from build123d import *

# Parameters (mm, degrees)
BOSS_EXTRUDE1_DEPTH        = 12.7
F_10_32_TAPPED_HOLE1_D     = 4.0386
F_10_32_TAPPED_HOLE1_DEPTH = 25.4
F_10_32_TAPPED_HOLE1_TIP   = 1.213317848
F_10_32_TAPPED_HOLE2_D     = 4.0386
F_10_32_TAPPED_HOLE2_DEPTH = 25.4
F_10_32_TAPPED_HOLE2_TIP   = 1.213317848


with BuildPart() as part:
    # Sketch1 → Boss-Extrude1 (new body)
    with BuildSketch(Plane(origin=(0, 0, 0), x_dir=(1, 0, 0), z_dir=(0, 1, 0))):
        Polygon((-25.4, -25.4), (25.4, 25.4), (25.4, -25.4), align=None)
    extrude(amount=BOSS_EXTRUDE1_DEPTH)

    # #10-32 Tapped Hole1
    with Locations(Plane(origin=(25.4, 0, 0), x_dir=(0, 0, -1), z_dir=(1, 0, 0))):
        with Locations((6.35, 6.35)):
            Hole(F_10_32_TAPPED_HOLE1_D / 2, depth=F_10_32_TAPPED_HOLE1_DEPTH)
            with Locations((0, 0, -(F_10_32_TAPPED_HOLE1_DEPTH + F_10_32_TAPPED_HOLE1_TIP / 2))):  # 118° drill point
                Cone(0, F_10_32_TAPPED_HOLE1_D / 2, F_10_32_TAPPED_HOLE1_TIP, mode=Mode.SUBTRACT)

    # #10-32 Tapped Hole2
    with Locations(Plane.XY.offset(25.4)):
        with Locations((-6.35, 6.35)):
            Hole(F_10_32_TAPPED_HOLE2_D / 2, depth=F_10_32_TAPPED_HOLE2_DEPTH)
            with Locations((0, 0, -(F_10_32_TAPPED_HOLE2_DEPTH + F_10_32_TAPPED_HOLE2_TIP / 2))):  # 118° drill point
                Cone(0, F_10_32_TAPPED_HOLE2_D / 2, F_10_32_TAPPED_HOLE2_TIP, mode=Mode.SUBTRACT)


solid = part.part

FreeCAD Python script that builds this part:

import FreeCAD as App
import Part
import Sketcher
Q = App.Units.Quantity

doc = App.newDocument("Part")
body = doc.addObject("PartDesign::Body", "Body")

# Sketch on XZ plane
sketch1 = body.newObject("Sketcher::SketchObject", "Sketch")
sketch1.AttachmentSupport = (doc.getObject("XZ_Plane"), [""])
sketch1.MapMode = "FlatFace"
sketch1.addGeometry([
    Part.LineSegment(App.Vector(25.4, -25.4, 0), App.Vector(-25.4, 25.4, 0)),
    Part.LineSegment(App.Vector(-25.4, 25.4, 0), App.Vector(25.4, 25.4, 0)),
    Part.LineSegment(App.Vector(25.4, 25.4, 0), App.Vector(25.4, -25.4, 0)),
], False)
sketch1.addConstraint([
    Sketcher.Constraint("Coincident", 0, 2, 1, 1),
    Sketcher.Constraint("Coincident", 1, 2, 2, 1),
    Sketcher.Constraint("Coincident", 2, 2, 0, 1),
    Sketcher.Constraint("Horizontal", 1),
    Sketcher.Constraint("Vertical", 2),
    Sketcher.Constraint("Symmetric", 0, 2, 2, 2, -1, 1),
    Sketcher.Constraint("Equal", 1, 2),
    Sketcher.Constraint("DistanceX", 1, 1, 1, 2, Q("2 in")),
])
pad1 = body.newObject("PartDesign::Pad", "Pad")
pad1.Profile = sketch1
pad1.Length = Q("0.5 in")
pad1.Reversed = True

# Sketch on YZ plane
sketch2 = body.newObject("Sketcher::SketchObject", "Sketch001")
sketch2.AttachmentSupport = (doc.getObject("YZ_Plane"), [""])
sketch2.MapMode = "FlatFace"
sketch2.AttachmentOffset = App.Placement(App.Vector(0, 0, 1 * 25.4), App.Rotation())
sketch2.addGeometry(Part.Circle(App.Vector(6.35, -6.35, 0), App.Vector(0, 0, 1), 2.0193), False)
sketch2.addConstraint([
    Sketcher.Constraint("Diameter", 0, Q("0.159 in")),
    Sketcher.Constraint("DistanceX", -1, 1, 0, 3, Q("0.25 in")),
    Sketcher.Constraint("DistanceY", 0, 3, -1, 1, Q("0.25 in")),
])
doc.recompute()
hole = body.newObject("PartDesign::Hole", "Hole")
hole.Profile = sketch2
hole.ThreadType = "None"
hole.Diameter = Q("0.159 in")
hole.DepthType = "Dimension"
hole.Depth = Q("1 in")
hole.DrillPoint = "Angled"
hole.DrillPointAngle = 118

# Sketch on XY plane
sketch3 = body.newObject("Sketcher::SketchObject", "Sketch002")
sketch3.AttachmentSupport = (doc.getObject("XY_Plane"), [""])
sketch3.MapMode = "FlatFace"
sketch3.AttachmentOffset = App.Placement(App.Vector(0, 0, 1 * 25.4), App.Rotation())
sketch3.addGeometry(Part.Circle(App.Vector(-6.35, 6.35, 0), App.Vector(0, 0, 1), 2.0193), False)
sketch3.addConstraint([
    Sketcher.Constraint("Diameter", 0, Q("0.159 in")),
    Sketcher.Constraint("DistanceX", 0, 3, -1, 1, Q("0.25 in")),
    Sketcher.Constraint("DistanceY", -1, 1, 0, 3, Q("0.25 in")),
])
doc.recompute()
hole2 = body.newObject("PartDesign::Hole", "Hole001")
hole2.Profile = sketch3
hole2.ThreadType = "None"
hole2.Diameter = Q("0.159 in")
hole2.DepthType = "Dimension"
hole2.Depth = Q("1 in")
hole2.DrillPoint = "Angled"
hole2.DrillPointAngle = 118

doc.recompute()
